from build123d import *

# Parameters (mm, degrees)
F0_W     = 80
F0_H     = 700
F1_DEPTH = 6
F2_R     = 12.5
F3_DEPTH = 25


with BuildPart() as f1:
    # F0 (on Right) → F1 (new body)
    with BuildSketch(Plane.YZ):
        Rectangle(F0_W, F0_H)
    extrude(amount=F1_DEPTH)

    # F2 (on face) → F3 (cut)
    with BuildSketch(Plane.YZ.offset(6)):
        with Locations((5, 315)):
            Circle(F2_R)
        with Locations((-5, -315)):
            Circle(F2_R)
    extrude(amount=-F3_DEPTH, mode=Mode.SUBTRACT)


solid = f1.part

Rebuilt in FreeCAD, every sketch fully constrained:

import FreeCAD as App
import Part
import Sketcher

V = App.Vector


def add_polygon(sketch, points):
    """Adds a closed chain of lines whose ends are joined by coincident constraints."""
    first, n = sketch.GeometryCount, len(points)
    for a, b in zip(points, points[1:] + points[:1]):
        sketch.addGeometry(Part.LineSegment(App.Vector(*a, 0), App.Vector(*b, 0)), False)
    for i in range(n):
        sketch.addConstraint(Sketcher.Constraint("Coincident", first + i, 2, first + (i + 1) % n, 1))

doc = App.newDocument("Part")
body = doc.addObject("PartDesign::Body", "Body")

# Sketch on YZ plane
sketch1 = body.newObject("Sketcher::SketchObject", "Sketch")
sketch1.AttachmentSupport = (doc.getObject("YZ_Plane"), [""])
sketch1.MapMode = "FlatFace"
add_polygon(sketch1, [(-40, 350), (-40, -350), (40, -350), (40, 350)])  # lines 0-3
sketch1.addConstraint([
    Sketcher.Constraint("Vertical", 0),
    Sketcher.Constraint("Horizontal", 1),
    Sketcher.Constraint("Vertical", 2),
    Sketcher.Constraint("Horizontal", 3),
    Sketcher.Constraint("Symmetric", 0, 2, 2, 2, -1, 1),
    Sketcher.Constraint("DistanceX", 1, 1, 1, 2, 80.0),
    Sketcher.Constraint("DistanceY", 0, 2, 0, 1, 700.0),
])
pad1 = body.newObject("PartDesign::Pad", "Pad")
pad1.Profile = sketch1
pad1.Length = 6

# Sketch on YZ plane
sketch2 = body.newObject("Sketcher::SketchObject", "Sketch001")
sketch2.AttachmentSupport = (doc.getObject("YZ_Plane"), [""])
sketch2.MapMode = "FlatFace"
sketch2.AttachmentOffset = App.Placement(V(0, 0, 6), App.Rotation())
sketch2.addGeometry([
    Part.Circle(V(5, 315, 0), V(0, 0, 1), 12.5),
    Part.Circle(V(-5, -315, 0), V(0, 0, 1), 12.5),
], False)
sketch2.addConstraint([
    Sketcher.Constraint("Equal", 0, 1),
    Sketcher.Constraint("Symmetric", 0, 3, 1, 3, -1, 1),
    Sketcher.Constraint("Diameter", 0, 25.0),
    Sketcher.Constraint("DistanceX", -1, 1, 0, 3, 5.0),
    Sketcher.Constraint("DistanceY", -1, 1, 0, 3, 315.0),
])
pocket1 = body.newObject("PartDesign::Pocket", "Pocket")
pocket1.Profile = sketch2
pocket1.Length = 25

doc.recompute()
